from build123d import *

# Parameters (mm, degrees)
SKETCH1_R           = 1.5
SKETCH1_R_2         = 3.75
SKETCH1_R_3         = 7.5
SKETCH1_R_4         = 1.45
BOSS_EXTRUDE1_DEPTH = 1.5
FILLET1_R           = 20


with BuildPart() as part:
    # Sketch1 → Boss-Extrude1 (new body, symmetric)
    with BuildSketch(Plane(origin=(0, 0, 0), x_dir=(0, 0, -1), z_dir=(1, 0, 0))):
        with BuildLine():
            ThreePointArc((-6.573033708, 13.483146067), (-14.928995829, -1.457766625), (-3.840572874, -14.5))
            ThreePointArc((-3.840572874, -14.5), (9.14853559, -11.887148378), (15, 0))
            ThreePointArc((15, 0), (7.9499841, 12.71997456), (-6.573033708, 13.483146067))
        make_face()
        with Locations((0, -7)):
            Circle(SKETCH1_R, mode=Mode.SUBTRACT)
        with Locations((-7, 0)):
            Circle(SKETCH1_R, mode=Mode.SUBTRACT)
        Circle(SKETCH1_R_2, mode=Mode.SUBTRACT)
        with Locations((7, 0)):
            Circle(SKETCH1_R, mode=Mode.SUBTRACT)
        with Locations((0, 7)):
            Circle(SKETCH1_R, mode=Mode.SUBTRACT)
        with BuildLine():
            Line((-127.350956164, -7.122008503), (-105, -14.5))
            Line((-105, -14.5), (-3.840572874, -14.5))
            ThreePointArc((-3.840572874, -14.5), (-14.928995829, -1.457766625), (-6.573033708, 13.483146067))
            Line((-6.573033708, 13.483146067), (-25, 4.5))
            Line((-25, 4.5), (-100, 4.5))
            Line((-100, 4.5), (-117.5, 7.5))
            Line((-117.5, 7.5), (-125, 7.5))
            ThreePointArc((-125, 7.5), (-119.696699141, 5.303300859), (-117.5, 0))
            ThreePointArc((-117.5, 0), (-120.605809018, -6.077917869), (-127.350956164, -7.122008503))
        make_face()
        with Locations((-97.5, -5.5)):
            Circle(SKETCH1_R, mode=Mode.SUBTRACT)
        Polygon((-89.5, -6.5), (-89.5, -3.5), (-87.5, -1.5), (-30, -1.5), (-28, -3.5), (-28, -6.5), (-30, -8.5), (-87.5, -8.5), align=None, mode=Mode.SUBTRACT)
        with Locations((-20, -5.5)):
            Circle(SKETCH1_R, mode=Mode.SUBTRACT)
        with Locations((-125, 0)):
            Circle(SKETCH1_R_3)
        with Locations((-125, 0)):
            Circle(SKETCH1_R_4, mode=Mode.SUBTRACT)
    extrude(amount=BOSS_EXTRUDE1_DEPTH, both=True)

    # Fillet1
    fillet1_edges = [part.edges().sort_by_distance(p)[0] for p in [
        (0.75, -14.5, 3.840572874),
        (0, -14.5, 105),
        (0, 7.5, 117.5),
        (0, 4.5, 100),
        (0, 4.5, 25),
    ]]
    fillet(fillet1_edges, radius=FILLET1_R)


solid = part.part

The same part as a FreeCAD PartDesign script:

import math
import FreeCAD as App
import Part
import Sketcher
Q = App.Units.Quantity


def edges_at(feature, points):
    """Names of the edges that pass closest to the given points."""
    edges = feature.Shape.Edges
    near = lambda p: min(range(len(edges)), key=lambda i: edges[i].distToShape(Part.Vertex(*p))[0])
    return sorted({f"Edge{near(p) + 1}" for p in points})

doc = App.newDocument("Part")
body = doc.addObject("PartDesign::Body", "Body")

sketch1 = body.newObject("Sketcher::SketchObject", "Sketch")
sketch1.AttachmentSupport = (doc.getObject("YZ_Plane"), [""])
sketch1.MapMode = "FlatFace"
sketch1.addGeometry(Part.ArcOfCircle(Part.Circle(App.Vector(0, 0, 0), App.Vector(0, 0, 1), 15), math.radians(-90), math.radians(26)), False)
sketch1.addGeometry(Part.LineSegment(App.Vector(13.5, 6.6, 0), App.Vector(4.5, 25, 0)), False)
sketch1.addGeometry(Part.LineSegment(App.Vector(4.5, 25, 0), App.Vector(4.5, 100, 0)), False)
sketch1.addGeometry(Part.LineSegment(App.Vector(4.5, 100, 0), App.Vector(7.5, 117.5, 0)), False)
sketch1.addGeometry(Part.LineSegment(App.Vector(7.5, 117.5, 0), App.Vector(7.5, 125, 0)), False)
sketch1.addGeometry(Part.ArcOfCircle(Part.Circle(App.Vector(0, 125, 0), App.Vector(0, 0, 1), 7.5), math.radians(0), math.radians(162)), False)
sketch1.addGeometry(Part.LineSegment(App.Vector(-7.1, 127.4, 0), App.Vector(-14.5, 105, 0)), False)
sketch1.addGeometry(Part.LineSegment(App.Vector(-14.5, 105, 0), App.Vector(-14.5, 3.8, 0)), False)
sketch1.addGeometry(Part.ArcOfCircle(Part.Circle(App.Vector(0, 0, 0), App.Vector(0, 0, 1), 15), math.radians(165), math.radians(270)), False)
sketch1.addGeometry(Part.Circle(App.Vector(-5.5, 97.5, 0), App.Vector(0, 0, 1), 1.5), False)
sketch1.addGeometry(Part.LineSegment(App.Vector(-8.5, 87.5, 0), App.Vector(-6.5, 89.5, 0)), False)
sketch1.addGeometry(Part.LineSegment(App.Vector(-6.5, 89.5, 0), App.Vector(-3.5, 89.5, 0)), False)
sketch1.addGeometry(Part.LineSegment(App.Vector(-3.5, 89.5, 0), App.Vector(-1.5, 87.5, 0)), False)
sketch1.addGeometry(Part.LineSegment(App.Vector(-1.5, 87.5, 0), App.Vector(-1.5, 30, 0)), False)
sketch1.addGeometry(Part.LineSegment(App.Vector(-1.5, 30, 0), App.Vector(-3.5, 28, 0)), False)
sketch1.addGeometry(Part.LineSegment(App.Vector(-3.5, 28, 0), App.Vector(-6.5, 28, 0)), False)
sketch1.addGeometry(Part.LineSegment(App.Vector(-6.5, 28, 0), App.Vector(-8.5, 30, 0)), False)
sketch1.addGeometry(Part.LineSegment(App.Vector(-8.5, 30, 0), App.Vector(-8.5, 87.5, 0)), False)
sketch1.addGeometry(Part.Circle(App.Vector(-7, 0, 0), App.Vector(0, 0, 1), 1.5), False)
sketch1.addGeometry(Part.Circle(App.Vector(-5.5, 20, 0), App.Vector(0, 0, 1), 1.5), False)
sketch1.addGeometry(Part.Circle(App.Vector(0, 125, 0), App.Vector(0, 0, 1), 1.4), False)
sketch1.addGeometry(Part.Circle(App.Vector(0, 7, 0), App.Vector(0, 0, 1), 1.5), False)
sketch1.addGeometry(Part.Circle(App.Vector(0, 0, 0), App.Vector(0, 0, 1), 3.8), False)
sketch1.addGeometry(Part.Circle(App.Vector(0, -7, 0), App.Vector(0, 0, 1), 1.5), False)
sketch1.addGeometry(Part.Circle(App.Vector(7, 0, 0), App.Vector(0, 0, 1), 1.5), False)
sketch1.addConstraint(Sketcher.Constraint("Tangent", 0, 2, 1, 1))
sketch1.addConstraint(Sketcher.Constraint("Coincident", 1, 2, 2, 1))
sketch1.addConstraint(Sketcher.Constraint("Coincident", 2, 2, 3, 1))
sketch1.addConstraint(Sketcher.Constraint("Coincident", 3, 2, 4, 1))
sketch1.addConstraint(Sketcher.Constraint("Tangent", 4, 2, 5, 1))
sketch1.addConstraint(Sketcher.Constraint("Tangent", 5, 2, 6, 1))
sketch1.addConstraint(Sketcher.Constraint("Coincident", 6, 2, 7, 1))
sketch1.addConstraint(Sketcher.Constraint("Coincident", 7, 2, 8, 1))
sketch1.addConstraint(Sketcher.Constraint("Tangent", 8, 2, 0, 1))
sketch1.addConstraint(Sketcher.Constraint("Coincident", 10, 2, 11, 1))
sketch1.addConstraint(Sketcher.Constraint("Coincident", 11, 2, 12, 1))
sketch1.addConstraint(Sketcher.Constraint("Coincident", 12, 2, 13, 1))
sketch1.addConstraint(Sketcher.Constraint("Coincident", 13, 2, 14, 1))
sketch1.addConstraint(Sketcher.Constraint("Coincident", 14, 2, 15, 1))
sketch1.addConstraint(Sketcher.Constraint("Coincident", 15, 2, 16, 1))
sketch1.addConstraint(Sketcher.Constraint("Coincident", 16, 2, 17, 1))
sketch1.addConstraint(Sketcher.Constraint("Coincident", 17, 2, 10, 1))
sketch1.addConstraint(Sketcher.Constraint("Vertical", 2))
sketch1.addConstraint(Sketcher.Constraint("Vertical", 4))
sketch1.addConstraint(Sketcher.Constraint("Vertical", 7))
sketch1.addConstraint(Sketcher.Constraint("Horizontal", 11))
sketch1.addConstraint(Sketcher.Constraint("Vertical", 13))
sketch1.addConstraint(Sketcher.Constraint("Horizontal", 15))
sketch1.addConstraint(Sketcher.Constraint("Vertical", 17))
sketch1.addConstraint(Sketcher.Constraint("Coincident", 0, 3, -1, 1))
sketch1.addConstraint(Sketcher.Constraint("Coincident", 22, 3, -1, 1))
sketch1.addConstraint(Sketcher.Constraint("Coincident", 20, 3, 5, 3))
sketch1.addConstraint(Sketcher.Constraint("Equal", 0, 8))
sketch1.addConstraint(Sketcher.Constraint("Equal", 9, 18))
sketch1.addConstraint(Sketcher.Constraint("Equal", 18, 19))
sketch1.addConstraint(Sketcher.Constraint("Equal", 19, 21))
sketch1.addConstraint(Sketcher.Constraint("Equal", 21, 23))
sketch1.addConstraint(Sketcher.Constraint("Equal", 23, 24))
sketch1.addConstraint(Sketcher.Constraint("Symmetric", 21, 3, 23, 3, -1, 1))
sketch1.addConstraint(Sketcher.Constraint("Symmetric", 18, 3, 24, 3, -1, 1))
sketch1.addConstraint(Sketcher.Constraint("PointOnObject", 5, 3, -2))
sketch1.addConstraint(Sketcher.Constraint("PointOnObject", 18, 3, -1))
sketch1.addConstraint(Sketcher.Constraint("PointOnObject", 21, 3, -2))
sketch1.addConstraint(Sketcher.Constraint("PointOnObject", 8, 2, -2))
sketch1.addConstraint(Sketcher.Constraint("Perpendicular", 10, 12))
sketch1.addConstraint(Sketcher.Constraint("Perpendicular", 12, 14))
sketch1.addConstraint(Sketcher.Constraint("Perpendicular", 14, 16))
sketch1.addConstraint(Sketcher.Constraint("Horizontal", 13, 2, 16, 2))
sketch1.addConstraint(Sketcher.Constraint("Horizontal", 12, 2, 17, 2))
sketch1.addConstraint(Sketcher.Constraint("Vertical", 9, 3, 19, 3))
sketch1.addConstraint(Sketcher.Constraint("Vertical", 11, 2, 14, 2))
sketch1.addConstraint(Sketcher.Constraint("Vertical", 10, 2, 15, 2))
sketch1.addConstraint(Sketcher.Constraint("Diameter", 9, Q("3 mm")))
sketch1.addConstraint(Sketcher.Constraint("Radius", 0, Q("15 mm")))
sketch1.addConstraint(Sketcher.Constraint("Diameter", 20, Q("2.9 mm")))
sketch1.addConstraint(Sketcher.Constraint("Diameter", 22, Q("7.5 mm")))
sketch1.addConstraint(Sketcher.Constraint("Radius", 5, Q("7.5 mm")))
sketch1.addConstraint(Sketcher.Constraint("DistanceX", 11, 1, 11, 2, Q("3 mm")))
sketch1.addConstraint(Sketcher.Constraint("DistanceY", 2, 1, 2, 2, Q("75 mm")))
sketch1.addConstraint(Sketcher.Constraint("DistanceY", 4, 1, 4, 2, Q("7.5 mm")))
sketch1.addConstraint(Sketcher.Constraint("DistanceY", 13, 2, 13, 1, Q("57.5 mm")))
sketch1.addConstraint(Sketcher.Constraint("DistanceY", -1, 1, 5, 3, Q("125 mm")))
sketch1.addConstraint(Sketcher.Constraint("DistanceX", 18, 3, -1, 1, Q("7 mm")))
sketch1.addConstraint(Sketcher.Constraint("DistanceY", -1, 1, 19, 3, Q("20 mm")))
sketch1.addConstraint(Sketcher.Constraint("DistanceY", -1, 1, 21, 3, Q("7 mm")))
sketch1.addConstraint(Sketcher.Constraint("DistanceY", -1, 1, 1, 2, Q("25 mm")))
sketch1.addConstraint(Sketcher.Constraint("DistanceY", -1, 1, 6, 2, Q("105 mm")))
sketch1.addConstraint(Sketcher.Constraint("DistanceY", -1, 1, 13, 2, Q("30 mm")))
sketch1.addConstraint(Sketcher.Constraint("DistanceY", -1, 1, 14, 2, Q("28 mm")))
sketch1.addConstraint(Sketcher.Constraint("DistanceX", 19, 3, 1, 2, Q("10 mm")))
sketch1.addConstraint(Sketcher.Constraint("DistanceX", 2, 2, 3, 2, Q("3 mm")))
sketch1.addConstraint(Sketcher.Constraint("DistanceY", 9, 3, 3, 2, Q("20 mm")))
sketch1.addConstraint(Sketcher.Constraint("DistanceX", 6, 2, 9, 3, Q("9 mm")))
sketch1.addConstraint(Sketcher.Constraint("DistanceX", 10, 2, 9, 3, Q("1 mm")))
pad1 = body.newObject("PartDesign::Pad", "Pad")
pad1.Profile = sketch1
pad1.Length = 3
pad1.Midplane = True
doc.recompute()

fillet = body.newObject("PartDesign::Fillet", "Fillet")
fillet.Base = (pad1, edges_at(pad1, [
    (0.75, -14.5, 3.841),
    (-0.75, -14.5, 105),
    (-0.75, 7.5, 117.5),
    (-0.75, 4.5, 100),
    (-0.75, 4.5, 25),
]))
fillet.Radius = 20

doc.recompute()
